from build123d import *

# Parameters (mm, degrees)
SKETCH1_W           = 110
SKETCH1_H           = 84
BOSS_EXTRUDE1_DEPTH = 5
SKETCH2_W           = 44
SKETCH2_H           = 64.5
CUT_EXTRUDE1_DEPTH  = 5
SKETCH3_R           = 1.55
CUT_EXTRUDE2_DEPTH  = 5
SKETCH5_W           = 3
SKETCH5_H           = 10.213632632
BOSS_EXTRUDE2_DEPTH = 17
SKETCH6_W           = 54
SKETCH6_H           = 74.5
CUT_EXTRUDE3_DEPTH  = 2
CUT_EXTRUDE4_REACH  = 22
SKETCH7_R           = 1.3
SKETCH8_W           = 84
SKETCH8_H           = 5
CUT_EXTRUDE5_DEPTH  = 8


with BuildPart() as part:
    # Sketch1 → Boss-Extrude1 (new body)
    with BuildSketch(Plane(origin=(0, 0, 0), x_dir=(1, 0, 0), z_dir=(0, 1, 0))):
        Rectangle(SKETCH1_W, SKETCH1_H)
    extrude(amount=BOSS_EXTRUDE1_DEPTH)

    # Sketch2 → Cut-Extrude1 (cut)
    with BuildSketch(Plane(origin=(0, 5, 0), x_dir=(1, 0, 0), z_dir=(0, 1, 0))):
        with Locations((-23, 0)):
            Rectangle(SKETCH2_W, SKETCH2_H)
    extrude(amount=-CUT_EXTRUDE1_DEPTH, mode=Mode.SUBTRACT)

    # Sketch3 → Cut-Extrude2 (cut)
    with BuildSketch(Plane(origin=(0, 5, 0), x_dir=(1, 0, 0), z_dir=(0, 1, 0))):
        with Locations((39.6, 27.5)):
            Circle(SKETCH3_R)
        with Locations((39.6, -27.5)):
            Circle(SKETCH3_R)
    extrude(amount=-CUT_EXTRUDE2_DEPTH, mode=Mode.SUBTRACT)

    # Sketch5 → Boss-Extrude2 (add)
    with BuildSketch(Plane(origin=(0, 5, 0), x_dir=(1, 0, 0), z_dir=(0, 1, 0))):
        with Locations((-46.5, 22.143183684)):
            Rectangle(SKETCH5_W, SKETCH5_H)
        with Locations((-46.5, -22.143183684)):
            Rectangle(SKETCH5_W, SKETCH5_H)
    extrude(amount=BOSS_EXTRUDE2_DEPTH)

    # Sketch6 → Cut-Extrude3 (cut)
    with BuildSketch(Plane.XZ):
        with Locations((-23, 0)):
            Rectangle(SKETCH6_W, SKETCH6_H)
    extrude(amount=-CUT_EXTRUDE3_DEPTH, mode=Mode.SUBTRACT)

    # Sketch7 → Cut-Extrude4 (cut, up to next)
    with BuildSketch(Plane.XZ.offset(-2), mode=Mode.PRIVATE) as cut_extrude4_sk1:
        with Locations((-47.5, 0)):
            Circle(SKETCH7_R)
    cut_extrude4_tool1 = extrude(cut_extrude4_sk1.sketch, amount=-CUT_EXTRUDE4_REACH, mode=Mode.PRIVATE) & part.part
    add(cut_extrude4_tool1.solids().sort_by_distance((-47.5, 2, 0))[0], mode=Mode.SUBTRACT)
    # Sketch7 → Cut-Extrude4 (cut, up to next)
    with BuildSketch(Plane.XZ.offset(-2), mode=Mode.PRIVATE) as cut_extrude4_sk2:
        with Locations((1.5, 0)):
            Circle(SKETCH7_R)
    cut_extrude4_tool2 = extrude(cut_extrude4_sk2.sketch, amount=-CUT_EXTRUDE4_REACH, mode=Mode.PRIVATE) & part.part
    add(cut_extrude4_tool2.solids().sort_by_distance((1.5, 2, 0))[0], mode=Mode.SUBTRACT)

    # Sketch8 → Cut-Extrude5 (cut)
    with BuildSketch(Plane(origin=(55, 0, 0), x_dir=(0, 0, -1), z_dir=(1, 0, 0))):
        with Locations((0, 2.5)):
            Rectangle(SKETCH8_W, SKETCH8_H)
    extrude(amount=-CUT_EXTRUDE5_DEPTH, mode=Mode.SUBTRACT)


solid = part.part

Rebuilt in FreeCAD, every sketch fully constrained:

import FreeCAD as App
import Part
import Sketcher

V = App.Vector
Q = App.Units.Quantity

doc = App.newDocument("Part")
body = doc.addObject("PartDesign::Body", "Body")

# Sketch on XZ plane
sketch1 = body.newObject("Sketcher::SketchObject", "Sketch")
sketch1.AttachmentSupport = (doc.getObject("XZ_Plane"), [""])
sketch1.MapMode = "FlatFace"
sketch1.addGeometry([
    Part.LineSegment(V(-55, -42, 0), V(-55, 42, 0)),
    Part.LineSegment(V(-55, 42, 0), V(55, 42, 0)),
    Part.LineSegment(V(55, 42, 0), V(55, -42, 0)),
    Part.LineSegment(V(55, -42, 0), V(-55, -42, 0)),
], False)
sketch1.addConstraint([
    Sketcher.Constraint("Coincident", 0, 2, 1, 1),
    Sketcher.Constraint("Coincident", 1, 2, 2, 1),
    Sketcher.Constraint("Coincident", 2, 2, 3, 1),
    Sketcher.Constraint("Coincident", 3, 2, 0, 1),
    Sketcher.Constraint("Vertical", 0),
    Sketcher.Constraint("Horizontal", 1),
    Sketcher.Constraint("Vertical", 2),
    Sketcher.Constraint("Horizontal", 3),
    Sketcher.Constraint("Symmetric", 0, 2, 2, 2, -1, 1),
    Sketcher.Constraint("DistanceX", 1, 1, 1, 2, Q("110 mm")),
    Sketcher.Constraint("DistanceY", 0, 1, 0, 2, Q("84 mm")),
])
pad1 = body.newObject("PartDesign::Pad", "Pad")
pad1.Profile = sketch1
pad1.Length = 5
pad1.Reversed = True

# Sketch on XZ plane
sketch2 = body.newObject("Sketcher::SketchObject", "Sketch001")
sketch2.AttachmentSupport = (doc.getObject("XZ_Plane"), [""])
sketch2.MapMode = "FlatFace"
sketch2.AttachmentOffset = App.Placement(V(0, 0, -5), App.Rotation())
sketch2.addGeometry([
    Part.LineSegment(V(-45, -32.25, 0), V(-45, 32.25, 0)),
    Part.LineSegment(V(-45, 32.25, 0), V(-1, 32.25, 0)),
    Part.LineSegment(V(-1, 32.25, 0), V(-1, -32.25, 0)),
    Part.LineSegment(V(-1, -32.25, 0), V(-45, -32.25, 0)),
], False)
sketch2.addConstraint([
    Sketcher.Constraint("Coincident", 0, 2, 1, 1),
    Sketcher.Constraint("Coincident", 1, 2, 2, 1),
    Sketcher.Constraint("Coincident", 2, 2, 3, 1),
    Sketcher.Constraint("Coincident", 3, 2, 0, 1),
    Sketcher.Constraint("Vertical", 0),
    Sketcher.Constraint("Horizontal", 1),
    Sketcher.Constraint("Vertical", 2),
    Sketcher.Constraint("Horizontal", 3),
    Sketcher.Constraint("DistanceX", 1, 1, 1, 2, Q("44 mm")),
    Sketcher.Constraint("DistanceY", 0, 1, 0, 2, Q("64.5 mm")),
    Sketcher.Constraint("DistanceX", 0, 2, -1, 1, Q("45 mm")),
    Sketcher.Constraint("DistanceY", -1, 1, 0, 2, Q("32.25 mm")),
])
pocket1 = body.newObject("PartDesign::Pocket", "Pocket")
pocket1.Profile = sketch2
pocket1.Length = 5
pocket1.Reversed = True

# Sketch on XZ plane
sketch3 = body.newObject("Sketcher::SketchObject", "Sketch002")
sketch3.AttachmentSupport = (doc.getObject("XZ_Plane"), [""])
sketch3.MapMode = "FlatFace"
sketch3.AttachmentOffset = App.Placement(V(0, 0, -5), App.Rotation())
sketch3.addGeometry([
    Part.Circle(V(39.6, -27.5, 0), V(0, 0, 1), 1.55),
    Part.Circle(V(39.6, 27.5, 0), V(0, 0, 1), 1.55),
], False)
sketch3.addConstraint([
    Sketcher.Constraint("Equal", 0, 1),
    Sketcher.Constraint("Symmetric", 0, 3, 1, 3, -1),
    Sketcher.Constraint("Diameter", 0, Q("3.1 mm")),
    Sketcher.Constraint("DistanceY", 0, 3, 1, 3, Q("55 mm")),
    Sketcher.Constraint("DistanceX", -1, 1, 0, 3, Q("39.6 mm")),
])
pocket2 = body.newObject("PartDesign::Pocket", "Pocket001")
pocket2.Profile = sketch3
pocket2.Length = 5
pocket2.Reversed = True

# Sketch on XZ plane
sketch4 = body.newObject("Sketcher::SketchObject", "Sketch003")
sketch4.AttachmentSupport = (doc.getObject("XZ_Plane"), [""])
sketch4.MapMode = "FlatFace"
sketch4.AttachmentOffset = App.Placement(V(0, 0, -5), App.Rotation())
sketch4.addGeometry([
    Part.LineSegment(V(-48, -27.25, 0), V(-48, -17.036367, 0)),  # 0
    Part.LineSegment(V(-48, -17.036367, 0), V(-45, -17.036367, 0)),  # 1
    Part.LineSegment(V(-45, -17.036367, 0), V(-45, -27.25, 0)),  # 2
    Part.LineSegment(V(-45, -27.25, 0), V(-48, -27.25, 0)),  # 3
    Part.LineSegment(V(-48, 17.036367, 0), V(-48, 27.25, 0)),  # 4
    Part.LineSegment(V(-48, 27.25, 0), V(-45, 27.25, 0)),  # 5
    Part.LineSegment(V(-45, 27.25, 0), V(-45, 17.036367, 0)),  # 6
    Part.LineSegment(V(-45, 17.036367, 0), V(-48, 17.036367, 0)),  # 7
], False)
sketch4.addConstraint([
    Sketcher.Constraint("Coincident", 0, 2, 1, 1),
    Sketcher.Constraint("Coincident", 1, 2, 2, 1),
    Sketcher.Constraint("Coincident", 2, 2, 3, 1),
    Sketcher.Constraint("Coincident", 3, 2, 0, 1),
    Sketcher.Constraint("Coincident", 4, 2, 5, 1),
    Sketcher.Constraint("Coincident", 5, 2, 6, 1),
    Sketcher.Constraint("Coincident", 6, 2, 7, 1),
    Sketcher.Constraint("Coincident", 7, 2, 4, 1),
    Sketcher.Constraint("Vertical", 0),
    Sketcher.Constraint("Horizontal", 1),
    Sketcher.Constraint("Vertical", 2),
    Sketcher.Constraint("Horizontal", 3),
    Sketcher.Constraint("Vertical", 4),
    Sketcher.Constraint("Horizontal", 5),
    Sketcher.Constraint("Vertical", 6),
    Sketcher.Constraint("Horizontal", 7),
    Sketcher.Constraint("Symmetric", 3, 2, 4, 2, -1),
    Sketcher.Constraint("Symmetric", 1, 2, 6, 2, -1),
    Sketcher.Constraint("DistanceX", 1, 1, 1, 2, Q("3 mm")),
    Sketcher.Constraint("DistanceX", 0, 2, -1, 1, Q("48 mm")),
    Sketcher.Constraint("DistanceY", 3, 2, 4, 2, Q("54.5 mm")),
    Sketcher.Constraint("DistanceY", 0, 1, 0, 2, Q("10.213633 mm")),
])
pad2 = body.newObject("PartDesign::Pad", "Pad001")
pad2.Profile = sketch4
pad2.Length = 17
pad2.Reversed = True

# Sketch on XZ plane
sketch5 = body.newObject("Sketcher::SketchObject", "Sketch004")
sketch5.AttachmentSupport = (doc.getObject("XZ_Plane"), [""])
sketch5.MapMode = "FlatFace"
sketch5.addGeometry([
    Part.LineSegment(V(-50, 37.25, 0), V(-50, -37.25, 0)),
    Part.LineSegment(V(-50, -37.25, 0), V(4, -37.25, 0)),
    Part.LineSegment(V(4, -37.25, 0), V(4, 37.25, 0)),
    Part.LineSegment(V(4, 37.25, 0), V(-50, 37.25, 0)),
], False)
sketch5.addConstraint([
    Sketcher.Constraint("Coincident", 0, 2, 1, 1),
    Sketcher.Constraint("Coincident", 1, 2, 2, 1),
    Sketcher.Constraint("Coincident", 2, 2, 3, 1),
    Sketcher.Constraint("Coincident", 3, 2, 0, 1),
    Sketcher.Constraint("Vertical", 0),
    Sketcher.Constraint("Horizontal", 1),
    Sketcher.Constraint("Vertical", 2),
    Sketcher.Constraint("Horizontal", 3),
    Sketcher.Constraint("DistanceX", 1, 1, 1, 2, Q("54 mm")),
    Sketcher.Constraint("DistanceY", 0, 2, 0, 1, Q("74.5 mm")),
    Sketcher.Constraint("DistanceX", 0, 2, -1, 1, Q("50 mm")),
    Sketcher.Constraint("DistanceY", 0, 2, -1, 1, Q("37.25 mm")),
])
pocket3 = body.newObject("PartDesign::Pocket", "Pocket002")
pocket3.Profile = sketch5
pocket3.Length = 2

# Sketch on XZ plane
sketch6 = body.newObject("Sketcher::SketchObject", "Sketch005")
sketch6.AttachmentSupport = (doc.getObject("XZ_Plane"), [""])
sketch6.MapMode = "FlatFace"
sketch6.AttachmentOffset = App.Placement(V(0, 0, -2), App.Rotation())
sketch6.addGeometry(Part.Circle(V(-47.5, 0, 0), V(0, 0, 1), 1.3), False)
sketch6.addConstraint([
    Sketcher.Constraint("PointOnObject", 0, 3, -1),
    Sketcher.Constraint("Diameter", 0, Q("2.6 mm")),
    Sketcher.Constraint("DistanceX", 0, 3, -1, 1, Q("47.5 mm")),
])
pocket4 = body.newObject("PartDesign::Pocket", "Pocket003")
pocket4.Profile = sketch6
pocket4.Type = "UpToFirst"

# Sketch on XZ plane
sketch7 = body.newObject("Sketcher::SketchObject", "Sketch006")
sketch7.AttachmentSupport = (doc.getObject("XZ_Plane"), [""])
sketch7.MapMode = "FlatFace"
sketch7.AttachmentOffset = App.Placement(V(0, 0, -2), App.Rotation())
sketch7.addGeometry(Part.Circle(V(1.5, 0, 0), V(0, 0, 1), 1.3), False)
sketch7.addConstraint([
    Sketcher.Constraint("PointOnObject", 0, 3, -1),
    Sketcher.Constraint("Diameter", 0, Q("2.6 mm")),
    Sketcher.Constraint("DistanceX", -1, 1, 0, 3, Q("1.5 mm")),
])
pocket5 = body.newObject("PartDesign::Pocket", "Pocket004")
pocket5.Profile = sketch7
pocket5.Type = "UpToFirst"

# Sketch on YZ plane
sketch8 = body.newObject("Sketcher::SketchObject", "Sketch007")
sketch8.AttachmentSupport = (doc.getObject("YZ_Plane"), [""])
sketch8.MapMode = "FlatFace"
sketch8.AttachmentOffset = App.Placement(V(0, 0, 55), App.Rotation())
sketch8.addGeometry([
    Part.LineSegment(V(5, 42, 0), V(0, 42, 0)),
    Part.LineSegment(V(0, 42, 0), V(0, -42, 0)),
    Part.LineSegment(V(0, -42, 0), V(5, -42, 0)),
    Part.LineSegment(V(5, -42, 0), V(5, 42, 0)),
], False)
sketch8.addConstraint([
    Sketcher.Constraint("Coincident", 0, 2, 1, 1),
    Sketcher.Constraint("Coincident", 1, 2, 2, 1),
    Sketcher.Constraint("Coincident", 2, 2, 3, 1),
    Sketcher.Constraint("Coincident", 3, 2, 0, 1),
    Sketcher.Constraint("Horizontal", 0),
    Sketcher.Constraint("Vertical", 1),
    Sketcher.Constraint("Horizontal", 2),
    Sketcher.Constraint("Vertical", 3),
    Sketcher.Constraint("Symmetric", 0, 2, 1, 2, -1, 1),
    Sketcher.Constraint("DistanceX", 0, 2, 0, 1, Q("5 mm")),
    Sketcher.Constraint("DistanceY", 1, 2, 1, 1, Q("84 mm")),
])
pocket6 = body.newObject("PartDesign::Pocket", "Pocket005")
pocket6.Profile = sketch8
pocket6.Length = 8

doc.recompute()
